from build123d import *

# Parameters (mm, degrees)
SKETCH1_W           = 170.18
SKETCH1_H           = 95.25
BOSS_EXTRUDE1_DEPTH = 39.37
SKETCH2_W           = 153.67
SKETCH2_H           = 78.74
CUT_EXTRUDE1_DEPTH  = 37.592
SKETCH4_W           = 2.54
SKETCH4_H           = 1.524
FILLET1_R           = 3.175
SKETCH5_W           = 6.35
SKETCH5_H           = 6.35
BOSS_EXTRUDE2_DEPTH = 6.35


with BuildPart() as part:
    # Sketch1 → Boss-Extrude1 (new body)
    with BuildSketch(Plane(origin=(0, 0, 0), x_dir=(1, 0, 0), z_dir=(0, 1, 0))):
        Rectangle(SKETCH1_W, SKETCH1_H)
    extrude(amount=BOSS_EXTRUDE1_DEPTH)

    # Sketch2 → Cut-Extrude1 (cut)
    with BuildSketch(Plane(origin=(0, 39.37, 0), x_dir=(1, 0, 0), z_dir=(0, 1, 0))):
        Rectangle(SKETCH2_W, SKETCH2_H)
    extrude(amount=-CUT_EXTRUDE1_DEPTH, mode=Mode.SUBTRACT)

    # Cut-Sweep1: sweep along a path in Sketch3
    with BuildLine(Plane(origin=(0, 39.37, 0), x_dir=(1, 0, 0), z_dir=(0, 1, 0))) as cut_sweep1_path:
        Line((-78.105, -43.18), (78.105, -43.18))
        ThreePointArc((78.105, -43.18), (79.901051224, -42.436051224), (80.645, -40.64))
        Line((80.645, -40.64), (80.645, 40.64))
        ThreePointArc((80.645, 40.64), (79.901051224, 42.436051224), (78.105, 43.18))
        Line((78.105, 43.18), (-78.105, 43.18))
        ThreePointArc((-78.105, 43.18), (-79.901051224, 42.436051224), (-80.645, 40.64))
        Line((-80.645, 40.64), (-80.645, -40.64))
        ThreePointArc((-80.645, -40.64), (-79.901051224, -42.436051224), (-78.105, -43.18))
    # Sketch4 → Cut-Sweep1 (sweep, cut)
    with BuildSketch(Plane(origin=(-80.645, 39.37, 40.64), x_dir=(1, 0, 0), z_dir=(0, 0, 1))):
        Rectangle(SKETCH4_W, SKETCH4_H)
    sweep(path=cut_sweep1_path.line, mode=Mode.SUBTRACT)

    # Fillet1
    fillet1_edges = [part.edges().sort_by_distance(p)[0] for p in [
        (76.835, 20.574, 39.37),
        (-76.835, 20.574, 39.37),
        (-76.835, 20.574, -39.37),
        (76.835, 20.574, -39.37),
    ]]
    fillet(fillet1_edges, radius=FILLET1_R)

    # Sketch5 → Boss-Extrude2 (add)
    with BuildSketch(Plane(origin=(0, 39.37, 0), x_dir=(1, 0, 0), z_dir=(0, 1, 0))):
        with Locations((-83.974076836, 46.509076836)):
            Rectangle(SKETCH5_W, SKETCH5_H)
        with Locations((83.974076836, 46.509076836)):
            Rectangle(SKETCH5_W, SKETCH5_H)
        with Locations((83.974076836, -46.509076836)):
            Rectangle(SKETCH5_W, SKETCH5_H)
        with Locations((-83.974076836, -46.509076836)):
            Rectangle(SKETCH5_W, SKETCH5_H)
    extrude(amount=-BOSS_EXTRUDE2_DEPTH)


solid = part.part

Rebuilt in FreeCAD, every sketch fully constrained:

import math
import FreeCAD as App
import Part
import Sketcher
Q = App.Units.Quantity


def edges_at(feature, points):
    """Names of the edges that pass closest to the given points."""
    edges = feature.Shape.Edges
    near = lambda p: min(range(len(edges)), key=lambda i: edges[i].distToShape(Part.Vertex(*p))[0])
    return sorted({f"Edge{near(p) + 1}" for p in points})


def add_polygon(sketch, points):
    """Adds a closed chain of lines whose ends are joined by coincident constraints."""
    first, n = sketch.GeometryCount, len(points)
    for a, b in zip(points, points[1:] + points[:1]):
        sketch.addGeometry(Part.LineSegment(App.Vector(*a, 0), App.Vector(*b, 0)), False)
    for i in range(n):
        sketch.addConstraint(Sketcher.Constraint("Coincident", first + i, 2, first + (i + 1) % n, 1))

doc = App.newDocument("Part")
params = doc.addObject("Spreadsheet::Sheet", "Params")
for row, (alias, value) in enumerate([
    ("sketch1_width", "6.7 in"),
    ("sketch1_height", "3.75 in"),
    ("pad1_length", "1.55 in"),
    ("sketch2_height", "3.1 in"),
    ("sketch2_width", "6.05 in"),
    ("pocket1_length", "1.48 in"),
    ("sketch3_width", "0.1 in"),
    ("sketch3_height", "0.06 in"),
    ("sketch4_radius", "0.1 in"),
    ("sketch4_height", "3.2 in"),
    ("sketch4_width", "6.15 in"),
    ("fillet_radius", "0.125 in"),
    ("sketch5_width", "0.25 in"),
    ("pad2_length", "0.25 in"),
], start=1):
    params.set(f"A{row}", alias)
    params.set(f"B{row}", "=" + value)
    params.setAlias(f"B{row}", alias)

body = doc.addObject("PartDesign::Body", "Body")

# Sketch on XZ plane
sketch1 = body.newObject("Sketcher::SketchObject", "Sketch")
sketch1.AttachmentSupport = (doc.getObject("XZ_Plane"), [""])
sketch1.MapMode = "FlatFace"
add_polygon(sketch1, [(-85, -48), (-85, 48), (85, 48), (85, -48)])  # lines 0-3
sketch1.addConstraint([
    Sketcher.Constraint("Vertical", 0),
    Sketcher.Constraint("Horizontal", 1),
    Sketcher.Constraint("Vertical", 2),
    Sketcher.Constraint("Horizontal", 3),
    Sketcher.Constraint("Symmetric", 0, 2, 2, 2, -1, 1),
    Sketcher.Constraint("DistanceX", 1, 1, 1, 2, Q("6.7 in")),
    Sketcher.Constraint("DistanceY", 0, 1, 0, 2, Q("3.75 in")),
])
sketch1.setExpression("Constraints[9]", "Params.sketch1_width")
sketch1.setExpression("Constraints[10]", "Params.sketch1_height")
pad1 = body.newObject("PartDesign::Pad", "Pad")
pad1.Profile = sketch1
pad1.setExpression("Length", "Params.pad1_length")
pad1.Reversed = True

# Sketch on XZ plane
sketch2 = body.newObject("Sketcher::SketchObject", "Sketch001")
sketch2.AttachmentSupport = (doc.getObject("XZ_Plane"), [""])
sketch2.MapMode = "FlatFace"
sketch2.AttachmentOffset = App.Placement(App.Vector(0, 0, -1.55 * 25.4), App.Rotation())
add_polygon(sketch2, [(-77, -39), (-77, 39), (77, 39), (77, -39)])  # lines 0-3
sketch2.addConstraint([
    Sketcher.Constraint("Vertical", 0),
    Sketcher.Constraint("Horizontal", 1),
    Sketcher.Constraint("Vertical", 2),
    Sketcher.Constraint("Horizontal", 3),
    Sketcher.Constraint("Symmetric", 0, 2, 2, 2, -1, 1),
    Sketcher.Constraint("DistanceY", 0, 1, 0, 2, Q("3.1 in")),
    Sketcher.Constraint("DistanceX", 1, 1, 1, 2, Q("6.05 in")),
])
sketch2.setExpression("Constraints[9]", "Params.sketch2_height")
sketch2.setExpression("Constraints[10]", "Params.sketch2_width")
pocket1 = body.newObject("PartDesign::Pocket", "Pocket")
pocket1.Profile = sketch2
pocket1.setExpression("Length", "Params.pocket1_length")
pocket1.Reversed = True

# Sketch on XY plane
sketch3 = body.newObject("Sketcher::SketchObject", "Sketch002")
sketch3.AttachmentSupport = (doc.getObject("XY_Plane"), [""])
sketch3.MapMode = "FlatFace"
sketch3.AttachmentOffset = App.Placement(App.Vector(0, 0, 1.6 * 25.4), App.Rotation())
add_polygon(sketch3, [(-81.9, 40.1), (-81.9, 38.6), (-79.4, 38.6), (-79.4, 40.1)])  # lines 0-3
sketch3.addConstraint([
    Sketcher.Constraint("Vertical", 0),
    Sketcher.Constraint("Horizontal", 1),
    Sketcher.Constraint("Vertical", 2),
    Sketcher.Constraint("Horizontal", 3),
    Sketcher.Constraint("DistanceX", 1, 1, 1, 2, Q("0.1 in")),
    Sketcher.Constraint("DistanceY", 0, 2, 0, 1, Q("0.06 in")),
    Sketcher.Constraint("DistanceY", -1, 1, 0, 2, Q("1.52 in")),
    Sketcher.Constraint("DistanceX", 0, 2, -1, 1, Q("3.225 in")),
])
sketch3.setExpression("Constraints[8]", "Params.sketch3_width")
sketch3.setExpression("Constraints[9]", "Params.sketch3_height")

# Sketch on XZ plane
sketch4 = body.newObject("Sketcher::SketchObject", "Sketch003")
sketch4.AttachmentSupport = (doc.getObject("XZ_Plane"), [""])
sketch4.MapMode = "FlatFace"
sketch4.AttachmentOffset = App.Placement(App.Vector(0, 0, -1.55 * 25.4), App.Rotation())
sketch4.addGeometry([
    Part.LineSegment(App.Vector(-78.1, 43.2, 0), App.Vector(78.1, 43.2, 0)),  # 0
    Part.ArcOfCircle(Part.Circle(App.Vector(78.1, 40.6, 0), App.Vector(0, 0, 1), 2.5), math.radians(0), math.radians(90)),  # 1
    Part.LineSegment(App.Vector(80.6, 40.6, 0), App.Vector(80.6, -40.6, 0)),  # 2
    Part.ArcOfCircle(Part.Circle(App.Vector(78.1, -40.6, 0), App.Vector(0, 0, 1), 2.5), math.radians(-90), math.radians(0)),  # 3
    Part.LineSegment(App.Vector(78.1, -43.2, 0), App.Vector(-78.1, -43.2, 0)),  # 4
    Part.ArcOfCircle(Part.Circle(App.Vector(-78.1, -40.6, 0), App.Vector(0, 0, 1), 2.5), math.radians(-180), math.radians(-90)),  # 5
    Part.LineSegment(App.Vector(-80.6, -40.6, 0), App.Vector(-80.6, 40.6, 0)),  # 6
    Part.ArcOfCircle(Part.Circle(App.Vector(-78.1, 40.6, 0), App.Vector(0, 0, 1), 2.5), math.radians(90), math.radians(180)),  # 7
], False)
sketch4.addConstraint([
    Sketcher.Constraint("Tangent", 0, 2, 1, 2),
    Sketcher.Constraint("Tangent", 1, 1, 2, 1),
    Sketcher.Constraint("Tangent", 2, 2, 3, 2),
    Sketcher.Constraint("Tangent", 3, 1, 4, 1),
    Sketcher.Constraint("Tangent", 4, 2, 5, 2),
    Sketcher.Constraint("Tangent", 5, 1, 6, 1),
    Sketcher.Constraint("Tangent", 6, 2, 7, 2),
    Sketcher.Constraint("Tangent", 7, 1, 0, 1),
    Sketcher.Constraint("Horizontal", 0),
    Sketcher.Constraint("Vertical", 2),
    Sketcher.Constraint("Horizontal", 4),
    Sketcher.Constraint("Vertical", 6),
    Sketcher.Constraint("Equal", 1, 3),
    Sketcher.Constraint("Equal", 3, 5),
    Sketcher.Constraint("Equal", 5, 7),
    Sketcher.Constraint("Symmetric", 1, 3, 5, 3, -1, 1),
    Sketcher.Constraint("Radius", 1, Q("0.1 in")),
    Sketcher.Constraint("DistanceY", 2, 2, 2, 1, Q("3.2 in")),
    Sketcher.Constraint("DistanceX", 0, 1, 0, 2, Q("6.15 in")),
])
sketch4.setExpression("Constraints[16]", "Params.sketch4_radius")
sketch4.setExpression("Constraints[17]", "Params.sketch4_height")
sketch4.setExpression("Constraints[18]", "Params.sketch4_width")
doc.recompute()

subtractivepipe = body.newObject("PartDesign::SubtractivePipe", "SubtractivePipe")
subtractivepipe.Profile = sketch3
subtractivepipe.Spine = (sketch4, ["Edge1", "Edge2", "Edge3", "Edge4", "Edge5", "Edge6", "Edge7", "Edge8"])
doc.recompute()

fillet = body.newObject("PartDesign::Fillet", "Fillet")
fillet.Base = (subtractivepipe, edges_at(subtractivepipe, [
    (76.835, 20.574, 39.37),
    (-76.835, 20.574, 39.37),
    (-76.835, 20.574, -39.37),
    (76.835, 20.574, -39.37),
]))
fillet.setExpression("Radius", "Params.fillet_radius")

# Sketch on XZ plane
sketch5 = body.newObject("Sketcher::SketchObject", "Sketch004")
sketch5.AttachmentSupport = (doc.getObject("XZ_Plane"), [""])
sketch5.MapMode = "FlatFace"
sketch5.AttachmentOffset = App.Placement(App.Vector(0, 0, -1.55 * 25.4), App.Rotation())
add_polygon(sketch5, [(-87, -50), (-87, -43), (-81, -43), (-81, -50)])  # lines 0-3
add_polygon(sketch5, [(81, -50), (81, -43), (87, -43), (87, -50)])  # lines 4-7
add_polygon(sketch5, [(81, 43), (81, 50), (87, 50), (87, 43)])  # lines 8-11
add_polygon(sketch5, [(-87, 43), (-87, 50), (-81, 50), (-81, 43)])  # lines 12-15
sketch5.addConstraint([
    Sketcher.Constraint("Vertical", 0),
    Sketcher.Constraint("Horizontal", 1),
    Sketcher.Constraint("Vertical", 2),
    Sketcher.Constraint("Horizontal", 3),
    Sketcher.Constraint("Vertical", 4),
    Sketcher.Constraint("Horizontal", 5),
    Sketcher.Constraint("Vertical", 6),
    Sketcher.Constraint("Horizontal", 7),
    Sketcher.Constraint("Vertical", 8),
    Sketcher.Constraint("Horizontal", 9),
    Sketcher.Constraint("Vertical", 10),
    Sketcher.Constraint("Horizontal", 11),
    Sketcher.Constraint("Vertical", 12),
    Sketcher.Constraint("Horizontal", 13),
    Sketcher.Constraint("Vertical", 14),
    Sketcher.Constraint("Horizontal", 15),
    Sketcher.Constraint("Symmetric", 2, 2, 8, 2, -1, 1),
    Sketcher.Constraint("Symmetric", 0, 2, 10, 2, -1, 1),
    Sketcher.Constraint("Symmetric", 6, 2, 12, 2, -1, 1),
    Sketcher.Constraint("Symmetric", 4, 2, 14, 2, -1, 1),
    Sketcher.Constraint("Symmetric", 1, 2, 4, 2, -2),
    Sketcher.Constraint("Symmetric", 3, 2, 6, 2, -2),
    Sketcher.Constraint("Equal", 15, 0),
    Sketcher.Constraint("DistanceX", 1, 1, 1, 2, Q("0.25 in")),
    Sketcher.Constraint("DistanceX", 0, 2, -1, 1, 87.149077),
    Sketcher.Constraint("DistanceY", 0, 2, -1, 1, 43.334077),
])
sketch5.setExpression("Constraints[39]", "Params.sketch5_width")
pad2 = body.newObject("PartDesign::Pad", "Pad001")
pad2.Profile = sketch5
pad2.setExpression("Length", "Params.pad2_length")

doc.recompute()
